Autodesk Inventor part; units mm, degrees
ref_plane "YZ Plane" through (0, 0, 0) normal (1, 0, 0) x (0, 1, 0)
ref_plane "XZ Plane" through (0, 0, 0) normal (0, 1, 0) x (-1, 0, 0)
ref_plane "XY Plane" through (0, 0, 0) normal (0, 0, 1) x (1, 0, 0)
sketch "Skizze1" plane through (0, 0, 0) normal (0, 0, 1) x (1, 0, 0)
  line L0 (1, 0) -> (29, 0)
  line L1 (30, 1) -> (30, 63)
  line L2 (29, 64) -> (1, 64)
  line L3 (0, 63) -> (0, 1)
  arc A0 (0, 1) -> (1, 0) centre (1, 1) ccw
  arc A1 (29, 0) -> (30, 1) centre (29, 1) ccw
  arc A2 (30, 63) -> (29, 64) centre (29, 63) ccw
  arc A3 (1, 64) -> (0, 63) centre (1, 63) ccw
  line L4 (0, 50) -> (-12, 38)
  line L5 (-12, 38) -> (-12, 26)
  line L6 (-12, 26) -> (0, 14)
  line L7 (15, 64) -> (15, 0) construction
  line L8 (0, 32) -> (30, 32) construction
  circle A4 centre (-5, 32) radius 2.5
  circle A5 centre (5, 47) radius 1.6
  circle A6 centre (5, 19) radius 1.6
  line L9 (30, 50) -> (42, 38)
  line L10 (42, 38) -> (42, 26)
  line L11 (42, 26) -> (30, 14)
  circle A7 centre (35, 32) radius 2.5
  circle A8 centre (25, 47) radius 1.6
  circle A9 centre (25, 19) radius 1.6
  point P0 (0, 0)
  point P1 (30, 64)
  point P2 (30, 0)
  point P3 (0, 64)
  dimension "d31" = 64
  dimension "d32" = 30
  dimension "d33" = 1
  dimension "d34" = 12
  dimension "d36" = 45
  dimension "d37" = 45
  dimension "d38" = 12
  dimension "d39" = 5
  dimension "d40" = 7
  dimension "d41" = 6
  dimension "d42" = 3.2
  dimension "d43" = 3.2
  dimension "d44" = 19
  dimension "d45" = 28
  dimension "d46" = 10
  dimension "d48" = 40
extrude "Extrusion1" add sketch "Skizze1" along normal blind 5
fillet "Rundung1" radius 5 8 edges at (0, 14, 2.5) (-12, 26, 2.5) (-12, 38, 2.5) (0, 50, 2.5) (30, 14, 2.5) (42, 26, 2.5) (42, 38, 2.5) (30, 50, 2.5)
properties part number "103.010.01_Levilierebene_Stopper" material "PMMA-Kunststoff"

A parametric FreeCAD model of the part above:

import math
import FreeCAD as App
import Part
import Sketcher
Q = App.Units.Quantity


def edges_at(feature, points):
    """Names of the edges that pass closest to the given points."""
    edges = feature.Shape.Edges
    near = lambda p: min(range(len(edges)), key=lambda i: edges[i].distToShape(Part.Vertex(*p))[0])
    return sorted({f"Edge{near(p) + 1}" for p in points})

doc = App.newDocument("Part")
body = doc.addObject("PartDesign::Body", "Body")

sketch1 = body.newObject("Sketcher::SketchObject", "Sketch")
sketch1.AttachmentSupport = (doc.getObject("XY_Plane"), [""])
sketch1.MapMode = "FlatFace"
sketch1.addGeometry([
    Part.ArcOfCircle(Part.Circle(App.Vector(1, 1, 0), App.Vector(0, 0, 1), 1), math.radians(180), math.radians(270)),
    Part.LineSegment(App.Vector(1, 0, 0), App.Vector(29, 0, 0)),
    Part.ArcOfCircle(Part.Circle(App.Vector(29, 1, 0), App.Vector(0, 0, 1), 1), math.radians(-90), math.radians(0)),
    Part.LineSegment(App.Vector(30, 1, 0), App.Vector(30, 14, 0)),
    Part.LineSegment(App.Vector(30, 14, 0), App.Vector(42, 26, 0)),
    Part.LineSegment(App.Vector(42, 26, 0), App.Vector(42, 38, 0)),
    Part.LineSegment(App.Vector(42, 38, 0), App.Vector(30, 50, 0)),
    Part.LineSegment(App.Vector(30, 50, 0), App.Vector(30, 63, 0)),
    Part.ArcOfCircle(Part.Circle(App.Vector(29, 63, 0), App.Vector(0, 0, 1), 1), math.radians(0), math.radians(90)),
    Part.LineSegment(App.Vector(29, 64, 0), App.Vector(1, 64, 0)),
    Part.ArcOfCircle(Part.Circle(App.Vector(1, 63, 0), App.Vector(0, 0, 1), 1), math.radians(90), math.radians(180)),
    Part.LineSegment(App.Vector(0, 63, 0), App.Vector(0, 50, 0)),
    Part.LineSegment(App.Vector(0, 50, 0), App.Vector(-12, 38, 0)),
    Part.LineSegment(App.Vector(-12, 38, 0), App.Vector(-12, 26, 0)),
    Part.LineSegment(App.Vector(-12, 26, 0), App.Vector(0, 14, 0)),
    Part.LineSegment(App.Vector(0, 14, 0), App.Vector(0, 1, 0)),
    Part.Circle(App.Vector(5, 19, 0), App.Vector(0, 0, 1), 1.6),
    Part.Circle(App.Vector(25, 19, 0), App.Vector(0, 0, 1), 1.6),
    Part.Circle(App.Vector(5, 47, 0), App.Vector(0, 0, 1), 1.6),
    Part.Circle(App.Vector(25, 47, 0), App.Vector(0, 0, 1), 1.6),
    Part.Circle(App.Vector(-5, 32, 0), App.Vector(0, 0, 1), 2.5),
    Part.Circle(App.Vector(35, 32, 0), App.Vector(0, 0, 1), 2.5),
], False)
sketch1.addConstraint([
    Sketcher.Constraint("Tangent", 0, 2, 1, 1),
    Sketcher.Constraint("Tangent", 1, 2, 2, 1),
    Sketcher.Constraint("Tangent", 2, 2, 3, 1),
    Sketcher.Constraint("Coincident", 3, 2, 4, 1),
    Sketcher.Constraint("Coincident", 4, 2, 5, 1),
    Sketcher.Constraint("Coincident", 5, 2, 6, 1),
    Sketcher.Constraint("Coincident", 6, 2, 7, 1),
    Sketcher.Constraint("Tangent", 7, 2, 8, 1),
    Sketcher.Constraint("Tangent", 8, 2, 9, 1),
    Sketcher.Constraint("Tangent", 9, 2, 10, 1),
    Sketcher.Constraint("Tangent", 10, 2, 11, 1),
    Sketcher.Constraint("Coincident", 11, 2, 12, 1),
    Sketcher.Constraint("Coincident", 12, 2, 13, 1),
    Sketcher.Constraint("Coincident", 13, 2, 14, 1),
    Sketcher.Constraint("Coincident", 14, 2, 15, 1),
    Sketcher.Constraint("Tangent", 15, 2, 0, 1),
    Sketcher.Constraint("Horizontal", 1),
    Sketcher.Constraint("Vertical", 3),
    Sketcher.Constraint("Vertical", 5),
    Sketcher.Constraint("Vertical", 7),
    Sketcher.Constraint("Horizontal", 9),
    Sketcher.Constraint("Vertical", 11),
    Sketcher.Constraint("Vertical", 13),
    Sketcher.Constraint("Vertical", 15),
    Sketcher.Constraint("Equal", 0, 2),
    Sketcher.Constraint("Equal", 2, 8),
    Sketcher.Constraint("Equal", 8, 10),
    Sketcher.Constraint("Equal", 16, 17),
    Sketcher.Constraint("Equal", 17, 18),
    Sketcher.Constraint("Equal", 18, 19),
    Sketcher.Constraint("Equal", 20, 21),
    Sketcher.Constraint("PointOnObject", 0, 2, -1),
    Sketcher.Constraint("PointOnObject", 10, 2, -2),
    Sketcher.Constraint("PointOnObject", 14, 2, -2),
    Sketcher.Constraint("Perpendicular", 4, 6),
    Sketcher.Constraint("Perpendicular", 6, 12),
    Sketcher.Constraint("Perpendicular", 12, 14),
    Sketcher.Constraint("Horizontal", 16, 3, 17, 3),
    Sketcher.Constraint("Horizontal", 18, 3, 19, 3),
    Sketcher.Constraint("Horizontal", 20, 3, 21, 3),
    Sketcher.Constraint("Horizontal", 6, 2, 11, 2),
    Sketcher.Constraint("Horizontal", 5, 2, 12, 2),
    Sketcher.Constraint("Horizontal", 4, 2, 13, 2),
    Sketcher.Constraint("Horizontal", 3, 2, 14, 2),
    Sketcher.Constraint("Vertical", 2, 3, 8, 3),
    Sketcher.Constraint("Vertical", 16, 3, 18, 3),
    Sketcher.Constraint("Vertical", 17, 3, 19, 3),
    Sketcher.Constraint("Equal", 3, 7),
    Sketcher.Constraint("Diameter", 20, Q("5 mm")),
    Sketcher.Constraint("Radius", 0, Q("1 mm")),
    Sketcher.Constraint("Diameter", 16, Q("3.2 mm")),
    Sketcher.Constraint("DistanceX", 1, 1, 1, 2, Q("28 mm")),
    Sketcher.Constraint("DistanceY", 5, 1, 5, 2, Q("12 mm")),
    Sketcher.Constraint("DistanceX", -1, 1, 16, 3, Q("5 mm")),
    Sketcher.Constraint("DistanceY", -1, 1, 16, 3, Q("19 mm")),
    Sketcher.Constraint("DistanceX", 20, 3, -1, 1, Q("5 mm")),
    Sketcher.Constraint("DistanceY", -1, 1, 8, 2, Q("64 mm")),
    Sketcher.Constraint("DistanceX", 12, 2, -1, 1, Q("12 mm")),
    Sketcher.Constraint("DistanceY", 16, 3, 18, 3, Q("28 mm")),
    Sketcher.Constraint("DistanceX", 20, 3, 17, 3, Q("30 mm")),
    Sketcher.Constraint("DistanceX", 17, 3, 21, 3, Q("10 mm")),
    Sketcher.Constraint("DistanceY", 4, 2, 21, 3, Q("6 mm")),
])
pad1 = body.newObject("PartDesign::Pad", "Pad")
pad1.Profile = sketch1
pad1.Length = 5
doc.recompute()

fillet = body.newObject("PartDesign::Fillet", "Fillet")
fillet.Base = (pad1, edges_at(pad1, [
    (0, 14, 2.5),
    (-12, 26, 2.5),
    (-12, 38, 2.5),
    (0, 50, 2.5),
    (30, 14, 2.5),
    (42, 26, 2.5),
    (42, 38, 2.5),
    (30, 50, 2.5),
]))
fillet.Radius = 5

doc.recompute()
